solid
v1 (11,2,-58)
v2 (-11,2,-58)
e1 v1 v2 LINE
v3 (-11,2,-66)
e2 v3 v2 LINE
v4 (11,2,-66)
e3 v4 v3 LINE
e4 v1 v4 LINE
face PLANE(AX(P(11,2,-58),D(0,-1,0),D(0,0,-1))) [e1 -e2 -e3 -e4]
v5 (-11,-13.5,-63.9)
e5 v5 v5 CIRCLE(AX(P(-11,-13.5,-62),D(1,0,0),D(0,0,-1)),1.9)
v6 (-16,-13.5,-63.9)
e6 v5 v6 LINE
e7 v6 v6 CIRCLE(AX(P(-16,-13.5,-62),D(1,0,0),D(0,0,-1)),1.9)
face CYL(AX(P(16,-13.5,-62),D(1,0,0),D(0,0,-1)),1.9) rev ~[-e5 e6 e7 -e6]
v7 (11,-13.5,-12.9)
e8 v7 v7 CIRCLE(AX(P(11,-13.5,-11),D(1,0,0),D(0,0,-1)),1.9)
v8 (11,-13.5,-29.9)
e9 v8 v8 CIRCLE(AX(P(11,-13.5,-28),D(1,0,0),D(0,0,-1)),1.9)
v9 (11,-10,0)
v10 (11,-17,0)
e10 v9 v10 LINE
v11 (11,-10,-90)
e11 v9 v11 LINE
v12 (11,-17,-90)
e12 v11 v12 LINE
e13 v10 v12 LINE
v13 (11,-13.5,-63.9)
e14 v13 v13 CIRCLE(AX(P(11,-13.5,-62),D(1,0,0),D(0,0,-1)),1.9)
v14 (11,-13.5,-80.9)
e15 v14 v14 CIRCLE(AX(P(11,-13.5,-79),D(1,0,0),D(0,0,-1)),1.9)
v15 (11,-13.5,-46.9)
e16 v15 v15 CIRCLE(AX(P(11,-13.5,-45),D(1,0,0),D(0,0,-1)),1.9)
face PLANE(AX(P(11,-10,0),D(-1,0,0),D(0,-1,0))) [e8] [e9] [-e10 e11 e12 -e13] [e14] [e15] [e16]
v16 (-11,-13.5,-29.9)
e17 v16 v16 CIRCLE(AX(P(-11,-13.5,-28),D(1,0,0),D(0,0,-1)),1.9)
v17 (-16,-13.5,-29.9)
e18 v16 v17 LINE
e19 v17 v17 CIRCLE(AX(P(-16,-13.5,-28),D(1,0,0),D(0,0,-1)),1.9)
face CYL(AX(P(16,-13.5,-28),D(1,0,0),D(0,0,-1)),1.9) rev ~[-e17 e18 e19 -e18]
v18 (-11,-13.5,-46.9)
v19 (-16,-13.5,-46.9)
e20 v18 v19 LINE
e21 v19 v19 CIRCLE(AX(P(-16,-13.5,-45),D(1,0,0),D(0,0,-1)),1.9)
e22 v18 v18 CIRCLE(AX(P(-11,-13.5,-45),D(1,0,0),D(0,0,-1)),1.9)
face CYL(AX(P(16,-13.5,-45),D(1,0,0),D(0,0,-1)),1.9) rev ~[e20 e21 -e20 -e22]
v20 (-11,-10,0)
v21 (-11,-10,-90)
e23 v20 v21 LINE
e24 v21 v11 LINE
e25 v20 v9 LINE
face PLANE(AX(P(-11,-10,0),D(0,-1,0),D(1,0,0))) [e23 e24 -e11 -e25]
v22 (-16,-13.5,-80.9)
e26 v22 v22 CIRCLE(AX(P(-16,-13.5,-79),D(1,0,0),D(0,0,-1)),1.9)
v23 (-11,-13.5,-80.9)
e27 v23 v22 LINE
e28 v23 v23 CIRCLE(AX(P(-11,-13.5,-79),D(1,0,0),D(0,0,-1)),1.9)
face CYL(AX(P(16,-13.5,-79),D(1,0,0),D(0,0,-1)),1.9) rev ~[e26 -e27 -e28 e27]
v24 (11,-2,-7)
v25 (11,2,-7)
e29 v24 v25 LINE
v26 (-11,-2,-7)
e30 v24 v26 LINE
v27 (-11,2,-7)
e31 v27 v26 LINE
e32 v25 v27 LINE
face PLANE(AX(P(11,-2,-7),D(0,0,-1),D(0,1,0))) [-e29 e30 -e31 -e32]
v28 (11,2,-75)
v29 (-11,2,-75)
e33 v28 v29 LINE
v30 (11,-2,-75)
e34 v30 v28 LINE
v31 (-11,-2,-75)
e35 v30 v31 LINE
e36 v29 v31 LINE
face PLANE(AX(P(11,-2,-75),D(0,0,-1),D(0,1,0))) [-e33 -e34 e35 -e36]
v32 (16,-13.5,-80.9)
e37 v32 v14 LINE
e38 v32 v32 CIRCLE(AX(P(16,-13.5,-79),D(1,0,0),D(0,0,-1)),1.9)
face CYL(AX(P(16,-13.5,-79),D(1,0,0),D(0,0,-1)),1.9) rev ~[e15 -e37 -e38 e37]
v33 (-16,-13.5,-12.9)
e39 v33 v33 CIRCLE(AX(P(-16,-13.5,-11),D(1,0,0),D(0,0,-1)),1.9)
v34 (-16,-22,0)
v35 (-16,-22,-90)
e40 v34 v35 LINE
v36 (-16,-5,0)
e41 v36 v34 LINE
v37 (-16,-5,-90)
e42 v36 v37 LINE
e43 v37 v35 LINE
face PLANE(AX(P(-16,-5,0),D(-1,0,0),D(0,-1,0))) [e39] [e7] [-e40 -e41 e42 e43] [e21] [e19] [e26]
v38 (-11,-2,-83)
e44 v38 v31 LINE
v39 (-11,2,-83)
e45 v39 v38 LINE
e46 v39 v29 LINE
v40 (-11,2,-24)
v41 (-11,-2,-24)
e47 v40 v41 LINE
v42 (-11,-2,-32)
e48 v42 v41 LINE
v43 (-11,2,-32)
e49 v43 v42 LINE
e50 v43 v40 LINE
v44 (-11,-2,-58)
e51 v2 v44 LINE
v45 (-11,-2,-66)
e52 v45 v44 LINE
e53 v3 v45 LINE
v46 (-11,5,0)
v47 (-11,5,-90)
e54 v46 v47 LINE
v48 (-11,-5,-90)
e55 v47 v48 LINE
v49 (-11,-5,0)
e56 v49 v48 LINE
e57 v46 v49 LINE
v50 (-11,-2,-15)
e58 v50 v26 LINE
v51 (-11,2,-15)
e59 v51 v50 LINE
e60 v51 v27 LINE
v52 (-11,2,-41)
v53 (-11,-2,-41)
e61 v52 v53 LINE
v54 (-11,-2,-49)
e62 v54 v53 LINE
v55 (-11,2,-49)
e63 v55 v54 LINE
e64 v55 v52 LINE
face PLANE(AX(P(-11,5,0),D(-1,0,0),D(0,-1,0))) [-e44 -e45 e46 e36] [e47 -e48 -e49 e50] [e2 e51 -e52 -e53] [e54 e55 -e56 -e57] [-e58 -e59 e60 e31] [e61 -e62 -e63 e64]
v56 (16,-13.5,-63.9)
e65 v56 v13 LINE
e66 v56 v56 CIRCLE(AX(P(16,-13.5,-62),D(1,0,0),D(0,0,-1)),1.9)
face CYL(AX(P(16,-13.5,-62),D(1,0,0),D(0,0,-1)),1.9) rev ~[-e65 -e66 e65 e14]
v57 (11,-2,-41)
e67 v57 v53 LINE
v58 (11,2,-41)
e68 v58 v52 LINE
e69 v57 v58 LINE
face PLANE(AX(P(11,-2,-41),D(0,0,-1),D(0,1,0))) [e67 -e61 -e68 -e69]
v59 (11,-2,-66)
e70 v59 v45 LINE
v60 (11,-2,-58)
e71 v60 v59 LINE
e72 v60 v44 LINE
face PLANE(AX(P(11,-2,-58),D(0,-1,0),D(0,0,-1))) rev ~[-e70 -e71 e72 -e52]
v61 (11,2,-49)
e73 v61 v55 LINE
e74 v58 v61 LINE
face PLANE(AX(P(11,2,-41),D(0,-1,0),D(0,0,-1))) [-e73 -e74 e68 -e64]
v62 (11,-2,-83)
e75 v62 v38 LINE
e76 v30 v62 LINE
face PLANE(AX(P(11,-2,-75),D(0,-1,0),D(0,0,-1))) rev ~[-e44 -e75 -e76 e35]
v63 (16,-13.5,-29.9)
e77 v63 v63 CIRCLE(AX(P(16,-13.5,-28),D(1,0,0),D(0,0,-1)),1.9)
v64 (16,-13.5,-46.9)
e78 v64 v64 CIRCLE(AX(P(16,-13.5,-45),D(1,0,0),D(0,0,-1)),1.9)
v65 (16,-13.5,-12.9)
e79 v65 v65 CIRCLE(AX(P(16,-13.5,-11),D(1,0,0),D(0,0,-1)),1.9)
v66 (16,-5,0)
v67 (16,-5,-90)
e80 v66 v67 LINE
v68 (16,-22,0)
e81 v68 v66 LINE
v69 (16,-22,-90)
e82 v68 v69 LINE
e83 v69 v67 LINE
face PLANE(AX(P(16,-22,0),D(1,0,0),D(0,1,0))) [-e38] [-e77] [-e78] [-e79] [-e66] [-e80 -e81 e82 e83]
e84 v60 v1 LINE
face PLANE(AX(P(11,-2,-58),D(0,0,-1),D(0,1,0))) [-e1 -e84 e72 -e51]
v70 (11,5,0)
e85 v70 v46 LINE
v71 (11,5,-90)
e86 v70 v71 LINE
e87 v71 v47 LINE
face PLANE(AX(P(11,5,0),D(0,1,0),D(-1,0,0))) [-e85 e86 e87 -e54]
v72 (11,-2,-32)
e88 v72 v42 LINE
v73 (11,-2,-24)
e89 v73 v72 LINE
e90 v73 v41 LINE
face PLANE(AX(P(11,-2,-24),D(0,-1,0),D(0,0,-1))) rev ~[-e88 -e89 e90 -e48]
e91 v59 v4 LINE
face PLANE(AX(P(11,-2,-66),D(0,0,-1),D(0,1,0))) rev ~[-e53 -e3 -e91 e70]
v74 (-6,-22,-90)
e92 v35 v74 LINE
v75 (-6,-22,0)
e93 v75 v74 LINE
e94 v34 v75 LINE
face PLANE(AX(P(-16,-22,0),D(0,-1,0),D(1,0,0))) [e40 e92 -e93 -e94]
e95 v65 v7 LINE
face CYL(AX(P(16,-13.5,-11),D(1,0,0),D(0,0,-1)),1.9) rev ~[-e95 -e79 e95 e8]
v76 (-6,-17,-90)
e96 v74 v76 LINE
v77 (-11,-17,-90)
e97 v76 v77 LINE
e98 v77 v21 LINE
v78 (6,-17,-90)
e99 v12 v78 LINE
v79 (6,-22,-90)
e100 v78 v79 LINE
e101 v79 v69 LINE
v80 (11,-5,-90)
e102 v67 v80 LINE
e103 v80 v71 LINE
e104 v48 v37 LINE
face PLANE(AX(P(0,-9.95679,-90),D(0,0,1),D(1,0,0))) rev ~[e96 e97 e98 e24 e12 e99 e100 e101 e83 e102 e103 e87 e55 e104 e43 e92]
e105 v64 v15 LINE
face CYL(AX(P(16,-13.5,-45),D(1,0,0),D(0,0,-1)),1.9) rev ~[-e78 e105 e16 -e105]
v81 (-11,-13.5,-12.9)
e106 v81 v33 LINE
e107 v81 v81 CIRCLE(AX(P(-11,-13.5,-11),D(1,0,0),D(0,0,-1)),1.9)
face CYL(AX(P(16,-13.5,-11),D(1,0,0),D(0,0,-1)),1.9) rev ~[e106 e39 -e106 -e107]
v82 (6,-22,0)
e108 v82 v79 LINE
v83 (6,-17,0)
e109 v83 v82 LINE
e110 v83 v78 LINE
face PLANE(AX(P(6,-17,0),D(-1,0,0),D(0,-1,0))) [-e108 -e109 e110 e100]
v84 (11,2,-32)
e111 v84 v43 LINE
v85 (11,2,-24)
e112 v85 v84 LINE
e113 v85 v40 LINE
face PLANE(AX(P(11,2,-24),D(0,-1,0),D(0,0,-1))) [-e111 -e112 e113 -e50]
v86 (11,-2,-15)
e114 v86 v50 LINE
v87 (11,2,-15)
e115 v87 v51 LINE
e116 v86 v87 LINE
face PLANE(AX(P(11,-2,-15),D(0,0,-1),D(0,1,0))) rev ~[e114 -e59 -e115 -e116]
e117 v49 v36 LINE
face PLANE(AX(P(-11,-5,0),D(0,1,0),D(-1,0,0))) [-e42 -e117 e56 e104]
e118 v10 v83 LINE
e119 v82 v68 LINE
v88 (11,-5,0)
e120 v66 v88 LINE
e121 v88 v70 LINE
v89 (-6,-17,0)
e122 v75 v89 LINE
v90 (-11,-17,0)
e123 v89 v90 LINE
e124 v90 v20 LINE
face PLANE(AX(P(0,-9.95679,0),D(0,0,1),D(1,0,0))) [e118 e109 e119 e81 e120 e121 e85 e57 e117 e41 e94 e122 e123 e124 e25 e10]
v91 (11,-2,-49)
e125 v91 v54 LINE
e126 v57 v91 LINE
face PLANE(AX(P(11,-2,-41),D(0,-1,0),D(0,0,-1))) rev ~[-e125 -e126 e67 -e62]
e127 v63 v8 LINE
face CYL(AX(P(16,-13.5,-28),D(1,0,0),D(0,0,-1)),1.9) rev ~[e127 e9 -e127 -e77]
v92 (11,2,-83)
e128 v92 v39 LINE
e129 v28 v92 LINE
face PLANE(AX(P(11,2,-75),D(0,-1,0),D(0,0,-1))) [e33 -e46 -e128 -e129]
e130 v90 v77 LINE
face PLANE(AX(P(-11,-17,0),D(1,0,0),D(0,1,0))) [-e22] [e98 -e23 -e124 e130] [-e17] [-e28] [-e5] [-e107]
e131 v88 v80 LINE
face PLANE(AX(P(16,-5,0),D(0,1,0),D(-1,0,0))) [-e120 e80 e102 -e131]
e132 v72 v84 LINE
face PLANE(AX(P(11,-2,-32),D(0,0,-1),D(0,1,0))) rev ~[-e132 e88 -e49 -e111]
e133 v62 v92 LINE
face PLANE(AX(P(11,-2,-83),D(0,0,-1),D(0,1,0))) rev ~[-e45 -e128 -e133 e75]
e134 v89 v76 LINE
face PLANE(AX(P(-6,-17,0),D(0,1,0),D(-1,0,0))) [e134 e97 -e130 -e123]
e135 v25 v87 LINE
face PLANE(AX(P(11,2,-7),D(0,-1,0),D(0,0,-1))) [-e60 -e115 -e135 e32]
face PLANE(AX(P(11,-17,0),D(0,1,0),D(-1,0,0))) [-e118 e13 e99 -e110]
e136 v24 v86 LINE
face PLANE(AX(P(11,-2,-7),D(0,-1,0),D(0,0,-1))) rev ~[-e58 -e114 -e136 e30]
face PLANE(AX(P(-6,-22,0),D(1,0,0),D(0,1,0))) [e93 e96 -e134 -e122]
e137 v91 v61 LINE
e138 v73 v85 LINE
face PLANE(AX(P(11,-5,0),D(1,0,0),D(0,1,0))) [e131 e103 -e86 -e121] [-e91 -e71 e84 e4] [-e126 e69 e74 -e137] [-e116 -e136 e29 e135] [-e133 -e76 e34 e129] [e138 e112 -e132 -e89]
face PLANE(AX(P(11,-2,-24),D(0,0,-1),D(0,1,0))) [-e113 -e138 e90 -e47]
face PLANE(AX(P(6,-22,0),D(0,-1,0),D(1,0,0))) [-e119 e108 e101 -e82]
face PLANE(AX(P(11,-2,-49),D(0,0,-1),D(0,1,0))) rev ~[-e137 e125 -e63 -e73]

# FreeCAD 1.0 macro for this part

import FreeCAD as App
import Part
import Sketcher
from FreeCAD import Vector


def add_polygon(sketch, points):
    """Adds a closed chain of lines whose ends are joined by coincident constraints."""
    first, n = sketch.GeometryCount, len(points)
    for a, b in zip(points, points[1:] + points[:1]):
        sketch.addGeometry(Part.LineSegment(App.Vector(*a, 0), App.Vector(*b, 0)), False)
    for i in range(n):
        sketch.addConstraint(Sketcher.Constraint("Coincident", first + i, 2, first + (i + 1) % n, 1))

doc = App.newDocument("Part")
body = doc.addObject("PartDesign::Body", "Body")

# Sketch on XY plane
sketch1 = doc.addObject("Sketcher::SketchObject", "Sketch")
body.addObject(sketch1)
sketch1.AttachmentSupport = (doc.XY_Plane, [""])
sketch1.MapMode = "FlatFace"
add_polygon(sketch1, [(11, 5), (-11, 5), (-11, -5), (-16, -5), (-16, -22), (-6, -22), (-6, -17), (-11, -17), (-11, -10), (11, -10), (11, -17), (6, -17), (6, -22), (16, -22), (16, -5), (11, -5)])  # lines 0-15
sketch1.addConstraint([
    Sketcher.Constraint("Horizontal", 0),
    Sketcher.Constraint("Vertical", 1),
    Sketcher.Constraint("Horizontal", 2),
    Sketcher.Constraint("Vertical", 3),
    Sketcher.Constraint("Horizontal", 4),
    Sketcher.Constraint("Vertical", 5),
    Sketcher.Constraint("Horizontal", 6),
    Sketcher.Constraint("Vertical", 7),
    Sketcher.Constraint("Horizontal", 8),
    Sketcher.Constraint("Vertical", 9),
    Sketcher.Constraint("Horizontal", 10),
    Sketcher.Constraint("Vertical", 11),
    Sketcher.Constraint("Horizontal", 12),
    Sketcher.Constraint("Vertical", 13),
    Sketcher.Constraint("Horizontal", 14),
    Sketcher.Constraint("Vertical", 15),
    Sketcher.Constraint("Symmetric", 0, 2, 14, 2, -1, 1),
    Sketcher.Constraint("Symmetric", 6, 2, 9, 2, -2),
    Sketcher.Constraint("Symmetric", 4, 2, 11, 2, -2),
    Sketcher.Constraint("Symmetric", 2, 2, 13, 2, -2),
    Sketcher.Constraint("Vertical", 1, 2, 6, 2),
    Sketcher.Constraint("Equal", 2, 6),
    Sketcher.Constraint("Equal", 12, 1),
    Sketcher.Constraint("Equal", 14, 5),
    Sketcher.Constraint("DistanceX", 0, 2, 0, 1, 22.0),
    Sketcher.Constraint("DistanceX", 2, 2, 2, 1, 5.0),
    Sketcher.Constraint("DistanceY", 3, 2, 3, 1, 17.0),
    Sketcher.Constraint("DistanceY", 7, 1, 7, 2, 7.0),
])
pad1 = doc.addObject("PartDesign::Pad", "Pad")
body.addObject(pad1)
pad1.Profile = sketch1
pad1.Length = 90
pad1.Reversed = True

# Sketch on YZ plane
sketch2 = doc.addObject("Sketcher::SketchObject", "Sketch001")
body.addObject(sketch2)
sketch2.AttachmentSupport = (doc.YZ_Plane, [""])
sketch2.MapMode = "FlatFace"
sketch2.AttachmentOffset = App.Placement(Vector(0, 0, 16), App.Rotation())
sketch2.addGeometry([
    Part.Circle(Vector(-13.5, -45, 0), Vector(0, 0, 1), 1.9),  # 0
    Part.Circle(Vector(-13.5, -62, 0), Vector(0, 0, 1), 1.9),  # 1
    Part.Circle(Vector(-13.5, -79, 0), Vector(0, 0, 1), 1.9),  # 2
    Part.Circle(Vector(-13.5, -28, 0), Vector(0, 0, 1), 1.9),  # 3
    Part.Circle(Vector(-13.5, -11, 0), Vector(0, 0, 1), 1.9),  # 4
], False)
sketch2.addConstraint([
    Sketcher.Constraint("Equal", 0, 1),
    Sketcher.Constraint("Equal", 1, 2),
    Sketcher.Constraint("Equal", 2, 3),
    Sketcher.Constraint("Equal", 3, 4),
    Sketcher.Constraint("Vertical", 0, 3, 1, 3),
    Sketcher.Constraint("Vertical", 1, 3, 2, 3),
    Sketcher.Constraint("Vertical", 2, 3, 3, 3),
    Sketcher.Constraint("Vertical", 3, 3, 4, 3),
    Sketcher.Constraint("Diameter", 0, 3.8),
    Sketcher.Constraint("DistanceY", 0, 3, -1, 1, 45.0),
    Sketcher.Constraint("DistanceY", 1, 3, -1, 1, 62.0),
    Sketcher.Constraint("DistanceY", 2, 3, -1, 1, 79.0),
    Sketcher.Constraint("DistanceY", 3, 3, -1, 1, 28.0),
    Sketcher.Constraint("DistanceY", 4, 3, -1, 1, 11.0),
    Sketcher.Constraint("DistanceX", 0, 3, -1, 1, 13.5),
])
pocket1 = doc.addObject("PartDesign::Pocket", "Pocket")
body.addObject(pocket1)
pocket1.Profile = sketch2
pocket1.Type = "ThroughAll"

# Sketch on YZ plane
sketch3 = doc.addObject("Sketcher::SketchObject", "Sketch002")
body.addObject(sketch3)
sketch3.AttachmentSupport = (doc.YZ_Plane, [""])
sketch3.MapMode = "FlatFace"
sketch3.AttachmentOffset = App.Placement(Vector(0, 0, 11), App.Rotation())
add_polygon(sketch3, [(2, -58), (-2, -58), (-2, -66), (2, -66)])  # lines 0-3
add_polygon(sketch3, [(2, -41), (-2, -41), (-2, -49), (2, -49)])  # lines 4-7
add_polygon(sketch3, [(2, -75), (-2, -75), (-2, -83), (2, -83)])  # lines 8-11
add_polygon(sketch3, [(2, -24), (-2, -24), (-2, -32), (2, -32)])  # lines 12-15
add_polygon(sketch3, [(2, -7), (-2, -7), (-2, -15), (2, -15)])  # lines 16-19
sketch3.addConstraint([
    Sketcher.Constraint("Horizontal", 0),
    Sketcher.Constraint("Vertical", 1),
    Sketcher.Constraint("Horizontal", 2),
    Sketcher.Constraint("Vertical", 3),
    Sketcher.Constraint("Horizontal", 4),
    Sketcher.Constraint("Vertical", 5),
    Sketcher.Constraint("Horizontal", 6),
    Sketcher.Constraint("Vertical", 7),
    Sketcher.Constraint("Horizontal", 8),
    Sketcher.Constraint("Vertical", 9),
    Sketcher.Constraint("Horizontal", 10),
    Sketcher.Constraint("Vertical", 11),
    Sketcher.Constraint("Horizontal", 12),
    Sketcher.Constraint("Vertical", 13),
    Sketcher.Constraint("Horizontal", 14),
    Sketcher.Constraint("Vertical", 15),
    Sketcher.Constraint("Horizontal", 16),
    Sketcher.Constraint("Vertical", 17),
    Sketcher.Constraint("Horizontal", 18),
    Sketcher.Constraint("Vertical", 19),
    Sketcher.Constraint("Vertical", 1, 2, 4, 2),
    Sketcher.Constraint("Vertical", 3, 2, 6, 2),
    Sketcher.Constraint("Vertical", 5, 2, 8, 2),
    Sketcher.Constraint("Vertical", 7, 2, 10, 2),
    Sketcher.Constraint("Vertical", 9, 2, 12, 2),
    Sketcher.Constraint("Vertical", 11, 2, 14, 2),
    Sketcher.Constraint("Vertical", 13, 2, 16, 2),
    Sketcher.Constraint("Vertical", 15, 2, 18, 2),
    Sketcher.Constraint("Equal", 3, 5),
    Sketcher.Constraint("Equal", 7, 9),
    Sketcher.Constraint("Equal", 11, 13),
    Sketcher.Constraint("Equal", 15, 17),
    Sketcher.Constraint("DistanceX", 0, 2, 0, 1, 4.0),
    Sketcher.Constraint("DistanceY", 1, 2, 1, 1, 8.0),
    Sketcher.Constraint("DistanceX", 0, 2, -1, 1, 2.0),
    Sketcher.Constraint("DistanceY", 0, 2, -1, 1, 58.0),
    Sketcher.Constraint("DistanceY", 4, 2, -1, 1, 41.0),
    Sketcher.Constraint("DistanceY", 8, 2, -1, 1, 75.0),
    Sketcher.Constraint("DistanceY", 12, 2, -1, 1, 24.0),
    Sketcher.Constraint("DistanceY", 16, 2, -1, 1, 7.0),
])
pocket2 = doc.addObject("PartDesign::Pocket", "Pocket001")
body.addObject(pocket2)
pocket2.Profile = sketch3
pocket2.Type = "ThroughAll"

doc.recompute()
